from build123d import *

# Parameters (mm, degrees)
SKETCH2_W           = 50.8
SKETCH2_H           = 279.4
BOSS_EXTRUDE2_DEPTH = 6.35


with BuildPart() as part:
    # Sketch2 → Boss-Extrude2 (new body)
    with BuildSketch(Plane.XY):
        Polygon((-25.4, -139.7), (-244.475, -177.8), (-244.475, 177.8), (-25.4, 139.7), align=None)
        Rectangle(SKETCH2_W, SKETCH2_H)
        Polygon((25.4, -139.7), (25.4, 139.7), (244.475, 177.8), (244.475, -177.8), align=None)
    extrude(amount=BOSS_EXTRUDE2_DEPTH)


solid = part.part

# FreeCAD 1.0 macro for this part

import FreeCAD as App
import Part
import Sketcher

V = App.Vector
Q = App.Units.Quantity


def add_polygon(sketch, points):
    """Adds a closed chain of lines whose ends are joined by coincident constraints."""
    first, n = sketch.GeometryCount, len(points)
    for a, b in zip(points, points[1:] + points[:1]):
        sketch.addGeometry(Part.LineSegment(App.Vector(*a, 0), App.Vector(*b, 0)), False)
    for i in range(n):
        sketch.addConstraint(Sketcher.Constraint("Coincident", first + i, 2, first + (i + 1) % n, 1))

doc = App.newDocument("Part")
params = doc.addObject("Spreadsheet::Sheet", "Params")
for row, (alias, value) in enumerate([
    ("sketch1_width", "2 in"),
    ("sketch1_height", "14 in"),
    ("pad1_length", "0.25 in"),
], start=1):
    params.set(f"A{row}", alias)
    params.set(f"B{row}", "=" + value)
    params.setAlias(f"B{row}", alias)

body = doc.addObject("PartDesign::Body", "Body")

sketch1 = body.newObject("Sketcher::SketchObject", "Sketch")
sketch1.AttachmentSupport = (doc.getObject("XY_Plane"), [""])
sketch1.MapMode = "FlatFace"
add_polygon(sketch1, [(-244, -178), (-25, -140), (25, -140), (244, -178), (244, 178), (25, 140), (-25, 140), (-244, 178)])
sketch1.addConstraint([
    Sketcher.Constraint("Horizontal", 1),
    Sketcher.Constraint("Vertical", 3),
    Sketcher.Constraint("Horizontal", 5),
    Sketcher.Constraint("Vertical", 7),
    Sketcher.Constraint("Symmetric", 0, 2, 4, 2, -1, 1),
    Sketcher.Constraint("Symmetric", 2, 2, 6, 2, -1, 1),
    Sketcher.Constraint("Parallel", 0, 4),
    Sketcher.Constraint("Parallel", 2, 6),
    Sketcher.Constraint("Horizontal", 3, 2, 6, 2),
    Sketcher.Constraint("Vertical", 1, 2, 4, 2),
    Sketcher.Constraint("DistanceX", 1, 1, 1, 2, Q("2 in")),
    Sketcher.Constraint("DistanceY", 3, 1, 3, 2, Q("14 in")),
    Sketcher.Constraint("DistanceY", 1, 2, 4, 2, Q("11 in")),
    Sketcher.Constraint("DistanceX", 6, 2, 3, 2, Q("19.25 in")),
])
sketch1.setExpression("Constraints[18]", "Params.sketch1_width")
sketch1.setExpression("Constraints[19]", "Params.sketch1_height")
pad1 = body.newObject("PartDesign::Pad", "Pad")
pad1.Profile = sketch1
pad1.setExpression("Length", "Params.pad1_length")

doc.recompute()
